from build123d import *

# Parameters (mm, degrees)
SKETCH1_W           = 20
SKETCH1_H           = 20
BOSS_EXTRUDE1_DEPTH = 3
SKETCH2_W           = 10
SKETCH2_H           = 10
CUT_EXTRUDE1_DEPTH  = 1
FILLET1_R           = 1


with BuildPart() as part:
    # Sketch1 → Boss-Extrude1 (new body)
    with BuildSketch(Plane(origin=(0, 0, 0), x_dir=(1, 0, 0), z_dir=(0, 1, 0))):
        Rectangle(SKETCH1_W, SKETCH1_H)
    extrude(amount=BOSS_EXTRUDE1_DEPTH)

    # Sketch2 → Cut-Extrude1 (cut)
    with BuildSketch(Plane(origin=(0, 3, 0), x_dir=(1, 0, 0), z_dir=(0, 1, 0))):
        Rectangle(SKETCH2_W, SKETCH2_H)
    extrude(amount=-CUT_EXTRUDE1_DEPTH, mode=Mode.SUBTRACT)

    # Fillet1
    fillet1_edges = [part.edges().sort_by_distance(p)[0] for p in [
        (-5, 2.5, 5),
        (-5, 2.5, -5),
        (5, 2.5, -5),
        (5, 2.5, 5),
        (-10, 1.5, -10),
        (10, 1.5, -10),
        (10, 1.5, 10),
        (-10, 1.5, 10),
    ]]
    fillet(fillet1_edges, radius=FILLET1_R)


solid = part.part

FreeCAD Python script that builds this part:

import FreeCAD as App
import Part
import Sketcher


def edges_at(feature, points):
    """Names of the edges that pass closest to the given points."""
    edges = feature.Shape.Edges
    near = lambda p: min(range(len(edges)), key=lambda i: edges[i].distToShape(Part.Vertex(*p))[0])
    return sorted({f"Edge{near(p) + 1}" for p in points})

doc = App.newDocument("Part")
params = doc.addObject("Spreadsheet::Sheet", "Params")
for row, (alias, value) in enumerate([
    ("sketch1_width", "20 mm"),
    ("pad1_length", "3 mm"),
    ("sketch2_width", "10 mm"),
    ("pocket1_length", "1 mm"),
    ("fillet_radius", "1 mm"),
], start=1):
    params.set(f"A{row}", alias)
    params.set(f"B{row}", "=" + value)
    params.setAlias(f"B{row}", alias)

body = doc.addObject("PartDesign::Body", "Body")

# Sketch on XZ plane
sketch1 = body.newObject("Sketcher::SketchObject", "Sketch")
sketch1.AttachmentSupport = (doc.getObject("XZ_Plane"), [""])
sketch1.MapMode = "FlatFace"
sketch1.addGeometry([
    Part.LineSegment(App.Vector(-10, -10, 0), App.Vector(-10, 10, 0)),
    Part.LineSegment(App.Vector(-10, 10, 0), App.Vector(10, 10, 0)),
    Part.LineSegment(App.Vector(10, 10, 0), App.Vector(10, -10, 0)),
    Part.LineSegment(App.Vector(10, -10, 0), App.Vector(-10, -10, 0)),
], False)
sketch1.addConstraint([
    Sketcher.Constraint("Coincident", 0, 2, 1, 1),
    Sketcher.Constraint("Coincident", 1, 2, 2, 1),
    Sketcher.Constraint("Coincident", 2, 2, 3, 1),
    Sketcher.Constraint("Coincident", 3, 2, 0, 1),
    Sketcher.Constraint("Vertical", 0),
    Sketcher.Constraint("Horizontal", 1),
    Sketcher.Constraint("Vertical", 2),
    Sketcher.Constraint("Horizontal", 3),
    Sketcher.Constraint("Symmetric", 0, 2, 2, 2, -1, 1),
    Sketcher.Constraint("Equal", 3, 0),
    Sketcher.Constraint("DistanceX", 1, 1, 1, 2, 20.0),
])
sketch1.setExpression("Constraints[10]", "Params.sketch1_width")
pad1 = body.newObject("PartDesign::Pad", "Pad")
pad1.Profile = sketch1
pad1.setExpression("Length", "Params.pad1_length")
pad1.Reversed = True

# Sketch on XZ plane
sketch2 = body.newObject("Sketcher::SketchObject", "Sketch001")
sketch2.AttachmentSupport = (doc.getObject("XZ_Plane"), [""])
sketch2.MapMode = "FlatFace"
sketch2.AttachmentOffset = App.Placement(App.Vector(0, 0, -3), App.Rotation())
sketch2.addGeometry([
    Part.LineSegment(App.Vector(-5, -5, 0), App.Vector(-5, 5, 0)),
    Part.LineSegment(App.Vector(-5, 5, 0), App.Vector(5, 5, 0)),
    Part.LineSegment(App.Vector(5, 5, 0), App.Vector(5, -5, 0)),
    Part.LineSegment(App.Vector(5, -5, 0), App.Vector(-5, -5, 0)),
], False)
sketch2.addConstraint([
    Sketcher.Constraint("Coincident", 0, 2, 1, 1),
    Sketcher.Constraint("Coincident", 1, 2, 2, 1),
    Sketcher.Constraint("Coincident", 2, 2, 3, 1),
    Sketcher.Constraint("Coincident", 3, 2, 0, 1),
    Sketcher.Constraint("Vertical", 0),
    Sketcher.Constraint("Horizontal", 1),
    Sketcher.Constraint("Vertical", 2),
    Sketcher.Constraint("Horizontal", 3),
    Sketcher.Constraint("Symmetric", 0, 2, 2, 2, -1, 1),
    Sketcher.Constraint("Equal", 3, 0),
    Sketcher.Constraint("DistanceX", 1, 1, 1, 2, 10.0),
])
sketch2.setExpression("Constraints[10]", "Params.sketch2_width")
pocket1 = body.newObject("PartDesign::Pocket", "Pocket")
pocket1.Profile = sketch2
pocket1.setExpression("Length", "Params.pocket1_length")
pocket1.Reversed = True
doc.recompute()

fillet = body.newObject("PartDesign::Fillet", "Fillet")
fillet.Base = (pocket1, edges_at(pocket1, [
    (-5, 2.5, 5),
    (-5, 2.5, -5),
    (5, 2.5, -5),
    (5, 2.5, 5),
    (-10, 1.5, -10),
    (10, 1.5, -10),
    (10, 1.5, 10),
    (-10, 1.5, 10),
]))
fillet.setExpression("Radius", "Params.fillet_radius")

doc.recompute()
